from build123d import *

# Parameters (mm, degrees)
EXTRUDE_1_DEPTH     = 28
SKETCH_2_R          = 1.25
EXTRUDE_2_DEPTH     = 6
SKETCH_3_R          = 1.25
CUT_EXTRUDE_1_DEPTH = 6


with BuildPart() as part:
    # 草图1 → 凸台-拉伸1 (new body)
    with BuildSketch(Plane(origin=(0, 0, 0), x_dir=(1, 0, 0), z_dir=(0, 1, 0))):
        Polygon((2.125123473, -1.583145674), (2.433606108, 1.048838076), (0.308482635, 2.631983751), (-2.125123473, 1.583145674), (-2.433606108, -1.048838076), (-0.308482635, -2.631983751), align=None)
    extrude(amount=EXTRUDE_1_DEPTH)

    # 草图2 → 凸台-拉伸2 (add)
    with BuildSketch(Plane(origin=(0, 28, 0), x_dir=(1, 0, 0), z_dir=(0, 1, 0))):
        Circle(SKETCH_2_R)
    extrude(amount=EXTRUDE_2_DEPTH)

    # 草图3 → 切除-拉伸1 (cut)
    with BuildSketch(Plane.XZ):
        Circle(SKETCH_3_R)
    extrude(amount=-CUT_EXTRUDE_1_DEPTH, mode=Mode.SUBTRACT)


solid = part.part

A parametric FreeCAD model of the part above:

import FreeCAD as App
import Part
import Sketcher

V = App.Vector
Q = App.Units.Quantity

doc = App.newDocument("Part")
body = doc.addObject("PartDesign::Body", "Body")

sketch1 = body.newObject("Sketcher::SketchObject", "Sketch")
sketch1.AttachmentSupport = (doc.getObject("XZ_Plane"), [""])
sketch1.MapMode = "FlatFace"
sketch1.addGeometry(Part.LineSegment(V(2.1, 1.6, 0), V(2.4, -1, 0)), False)
sketch1.addGeometry(Part.LineSegment(V(2.4, -1, 0), V(0.3, -2.6, 0)), False)
sketch1.addGeometry(Part.LineSegment(V(0.3, -2.6, 0), V(-2.1, -1.6, 0)), False)
sketch1.addGeometry(Part.LineSegment(V(-2.1, -1.6, 0), V(-2.4, 1, 0)), False)
sketch1.addGeometry(Part.LineSegment(V(-2.4, 1, 0), V(-0.3, 2.6, 0)), False)
sketch1.addGeometry(Part.LineSegment(V(-0.3, 2.6, 0), V(2.1, 1.6, 0)), False)
sketch1.addConstraint(Sketcher.Constraint("Coincident", 0, 2, 1, 1))
sketch1.addConstraint(Sketcher.Constraint("Coincident", 1, 2, 2, 1))
sketch1.addConstraint(Sketcher.Constraint("Coincident", 2, 2, 3, 1))
sketch1.addConstraint(Sketcher.Constraint("Coincident", 3, 2, 4, 1))
sketch1.addConstraint(Sketcher.Constraint("Coincident", 4, 2, 5, 1))
sketch1.addConstraint(Sketcher.Constraint("Coincident", 5, 2, 0, 1))
sketch1.addConstraint(Sketcher.Constraint("Symmetric", 0, 2, 3, 2, -1, 1))
sketch1.addConstraint(Sketcher.Constraint("Symmetric", 1, 2, 4, 2, -1, 1))
sketch1.addConstraint(Sketcher.Constraint("Symmetric", 2, 2, 5, 2, -1, 1))
sketch1.addConstraint(Sketcher.Constraint("Equal", 0, 1))
sketch1.addConstraint(Sketcher.Constraint("Equal", 1, 2))
sketch1.addConstraint(Sketcher.Constraint("Distance", 0, Q("2.65 mm")))
sketch1.addConstraint(Sketcher.Constraint("DistanceY", 0, 2, -1, 1, Q("1.048838 mm")))
sketch1.addConstraint(Sketcher.Constraint("DistanceY", 1, 2, 2, 2, Q("1.048838 mm")))
sketch1.addConstraint(Sketcher.Constraint("DistanceX", 2, 2, 0, 2, Q("4.55873 mm")))
pad1 = body.newObject("PartDesign::Pad", "Pad")
pad1.Profile = sketch1
pad1.Length = 28
pad1.Reversed = True

sketch2 = body.newObject("Sketcher::SketchObject", "Sketch001")
sketch2.AttachmentSupport = (doc.getObject("XZ_Plane"), [""])
sketch2.MapMode = "FlatFace"
sketch2.AttachmentOffset = App.Placement(V(0, 0, -28), App.Rotation())
sketch2.addGeometry(Part.Circle(V(0, 0, 0), V(0, 0, 1), 1.2), False)
sketch2.addConstraint(Sketcher.Constraint("Coincident", 0, 3, -1, 1))
sketch2.addConstraint(Sketcher.Constraint("Diameter", 0, Q("2.5 mm")))
pad2 = body.newObject("PartDesign::Pad", "Pad001")
pad2.Profile = sketch2
pad2.Length = 6
pad2.Reversed = True

sketch3 = body.newObject("Sketcher::SketchObject", "Sketch002")
sketch3.AttachmentSupport = (doc.getObject("XZ_Plane"), [""])
sketch3.MapMode = "FlatFace"
sketch3.addGeometry(Part.Circle(V(0, 0, 0), V(0, 0, 1), 1.2), False)
sketch3.addConstraint(Sketcher.Constraint("Coincident", 0, 3, -1, 1))
sketch3.addConstraint(Sketcher.Constraint("Diameter", 0, Q("2.5 mm")))
pocket1 = body.newObject("PartDesign::Pocket", "Pocket")
pocket1.Profile = sketch3
pocket1.Length = 6

doc.recompute()
